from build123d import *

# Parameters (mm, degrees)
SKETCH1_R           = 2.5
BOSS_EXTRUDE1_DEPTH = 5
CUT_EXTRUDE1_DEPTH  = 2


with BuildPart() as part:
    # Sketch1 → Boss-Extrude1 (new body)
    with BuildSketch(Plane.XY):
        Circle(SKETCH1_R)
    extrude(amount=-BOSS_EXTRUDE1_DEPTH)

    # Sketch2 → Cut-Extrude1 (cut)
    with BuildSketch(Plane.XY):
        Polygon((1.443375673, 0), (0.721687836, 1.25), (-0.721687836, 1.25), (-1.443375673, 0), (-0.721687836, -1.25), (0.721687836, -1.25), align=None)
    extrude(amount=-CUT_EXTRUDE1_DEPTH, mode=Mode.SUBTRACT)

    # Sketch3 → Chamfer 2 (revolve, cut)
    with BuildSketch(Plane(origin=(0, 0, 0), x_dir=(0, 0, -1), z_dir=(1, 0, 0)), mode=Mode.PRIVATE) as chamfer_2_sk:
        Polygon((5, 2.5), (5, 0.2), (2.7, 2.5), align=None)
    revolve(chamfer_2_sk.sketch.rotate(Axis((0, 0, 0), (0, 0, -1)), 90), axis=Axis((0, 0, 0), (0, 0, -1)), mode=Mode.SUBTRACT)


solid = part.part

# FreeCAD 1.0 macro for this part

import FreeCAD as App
import Part
import Sketcher

V = App.Vector
Q = App.Units.Quantity


def add_polygon(sketch, points):
    """Adds a closed chain of lines whose ends are joined by coincident constraints."""
    first, n = sketch.GeometryCount, len(points)
    for a, b in zip(points, points[1:] + points[:1]):
        sketch.addGeometry(Part.LineSegment(App.Vector(*a, 0), App.Vector(*b, 0)), False)
    for i in range(n):
        sketch.addConstraint(Sketcher.Constraint("Coincident", first + i, 2, first + (i + 1) % n, 1))

doc = App.newDocument("Part")
params = doc.addObject("Spreadsheet::Sheet", "Params")
for row, (alias, value) in enumerate([
    ("sketch1_diameter", "5 mm"),
    ("pad1_length", "5 mm"),
    ("pocket1_length", "2 mm"),
    ("sketch3_width", "2.3 mm"),
    ("groove_angle", "360 deg"),
], start=1):
    params.set(f"A{row}", alias)
    params.set(f"B{row}", "=" + value)
    params.setAlias(f"B{row}", alias)

body = doc.addObject("PartDesign::Body", "Body")

sketch1 = body.newObject("Sketcher::SketchObject", "Sketch")
sketch1.AttachmentSupport = (doc.getObject("XY_Plane"), [""])
sketch1.MapMode = "FlatFace"
sketch1.addGeometry(Part.Circle(V(0, 0, 0), V(0, 0, 1), 2.5), False)
sketch1.addConstraint([
    Sketcher.Constraint("Coincident", 0, 3, -1, 1),
    Sketcher.Constraint("Diameter", 0, Q("5 mm")),
])
sketch1.setExpression("Constraints[1]", "Params.sketch1_diameter")
pad1 = body.newObject("PartDesign::Pad", "Pad")
pad1.Profile = sketch1
pad1.setExpression("Length", "Params.pad1_length")
pad1.Reversed = True

sketch2 = body.newObject("Sketcher::SketchObject", "Sketch001")
sketch2.AttachmentSupport = (doc.getObject("XY_Plane"), [""])
sketch2.MapMode = "FlatFace"
add_polygon(sketch2, [(1.443376, 0), (0.721688, 1.25), (-0.721688, 1.25), (-1.443376, 0), (-0.721688, -1.25), (0.721688, -1.25)])
sketch2.addConstraint([
    Sketcher.Constraint("Horizontal", 1),
    Sketcher.Constraint("Horizontal", 4),
    Sketcher.Constraint("Symmetric", 0, 2, 3, 2, -1, 1),
    Sketcher.Constraint("Symmetric", 2, 2, 5, 2, -1, 1),
    Sketcher.Constraint("PointOnObject", 2, 2, -1),
    Sketcher.Constraint("Parallel", 2, 5),
    Sketcher.Constraint("Vertical", 1, 2, 3, 2),
    Sketcher.Constraint("Angle", 0, Q("120 deg")),
    Sketcher.Constraint("DistanceY", 3, 2, 1, 2, Q("2.5 mm")),
    Sketcher.Constraint("DistanceX", 1, 2, 1, 1, Q("1.443376 mm")),
])
pocket1 = body.newObject("PartDesign::Pocket", "Pocket")
pocket1.Profile = sketch2
pocket1.setExpression("Length", "Params.pocket1_length")

sketch3 = body.newObject("Sketcher::SketchObject", "Sketch002")
sketch3.AttachmentSupport = (doc.getObject("YZ_Plane"), [""])
sketch3.MapMode = "FlatFace"
add_polygon(sketch3, [(0.2, -5), (2.5, -5), (2.5, -2.7)])
sketch3.addConstraint([
    Sketcher.Constraint("Horizontal", 0),
    Sketcher.Constraint("Vertical", 1),
    Sketcher.Constraint("Equal", 0, 1),
    Sketcher.Constraint("DistanceX", 0, 1, 0, 2, Q("2.3 mm")),
    Sketcher.Constraint("DistanceY", 0, 2, -1, 1, Q("5 mm")),
    Sketcher.Constraint("DistanceX", -1, 1, 0, 2, Q("2.5 mm")),
])
sketch3.setExpression("Constraints[6]", "Params.sketch3_width")
groove = body.newObject("PartDesign::Groove", "Groove")
groove.Profile = sketch3
groove.ReferenceAxis = (sketch3, ["V_Axis"])
groove.setExpression("Angle", "Params.groove_angle")

doc.recompute()
